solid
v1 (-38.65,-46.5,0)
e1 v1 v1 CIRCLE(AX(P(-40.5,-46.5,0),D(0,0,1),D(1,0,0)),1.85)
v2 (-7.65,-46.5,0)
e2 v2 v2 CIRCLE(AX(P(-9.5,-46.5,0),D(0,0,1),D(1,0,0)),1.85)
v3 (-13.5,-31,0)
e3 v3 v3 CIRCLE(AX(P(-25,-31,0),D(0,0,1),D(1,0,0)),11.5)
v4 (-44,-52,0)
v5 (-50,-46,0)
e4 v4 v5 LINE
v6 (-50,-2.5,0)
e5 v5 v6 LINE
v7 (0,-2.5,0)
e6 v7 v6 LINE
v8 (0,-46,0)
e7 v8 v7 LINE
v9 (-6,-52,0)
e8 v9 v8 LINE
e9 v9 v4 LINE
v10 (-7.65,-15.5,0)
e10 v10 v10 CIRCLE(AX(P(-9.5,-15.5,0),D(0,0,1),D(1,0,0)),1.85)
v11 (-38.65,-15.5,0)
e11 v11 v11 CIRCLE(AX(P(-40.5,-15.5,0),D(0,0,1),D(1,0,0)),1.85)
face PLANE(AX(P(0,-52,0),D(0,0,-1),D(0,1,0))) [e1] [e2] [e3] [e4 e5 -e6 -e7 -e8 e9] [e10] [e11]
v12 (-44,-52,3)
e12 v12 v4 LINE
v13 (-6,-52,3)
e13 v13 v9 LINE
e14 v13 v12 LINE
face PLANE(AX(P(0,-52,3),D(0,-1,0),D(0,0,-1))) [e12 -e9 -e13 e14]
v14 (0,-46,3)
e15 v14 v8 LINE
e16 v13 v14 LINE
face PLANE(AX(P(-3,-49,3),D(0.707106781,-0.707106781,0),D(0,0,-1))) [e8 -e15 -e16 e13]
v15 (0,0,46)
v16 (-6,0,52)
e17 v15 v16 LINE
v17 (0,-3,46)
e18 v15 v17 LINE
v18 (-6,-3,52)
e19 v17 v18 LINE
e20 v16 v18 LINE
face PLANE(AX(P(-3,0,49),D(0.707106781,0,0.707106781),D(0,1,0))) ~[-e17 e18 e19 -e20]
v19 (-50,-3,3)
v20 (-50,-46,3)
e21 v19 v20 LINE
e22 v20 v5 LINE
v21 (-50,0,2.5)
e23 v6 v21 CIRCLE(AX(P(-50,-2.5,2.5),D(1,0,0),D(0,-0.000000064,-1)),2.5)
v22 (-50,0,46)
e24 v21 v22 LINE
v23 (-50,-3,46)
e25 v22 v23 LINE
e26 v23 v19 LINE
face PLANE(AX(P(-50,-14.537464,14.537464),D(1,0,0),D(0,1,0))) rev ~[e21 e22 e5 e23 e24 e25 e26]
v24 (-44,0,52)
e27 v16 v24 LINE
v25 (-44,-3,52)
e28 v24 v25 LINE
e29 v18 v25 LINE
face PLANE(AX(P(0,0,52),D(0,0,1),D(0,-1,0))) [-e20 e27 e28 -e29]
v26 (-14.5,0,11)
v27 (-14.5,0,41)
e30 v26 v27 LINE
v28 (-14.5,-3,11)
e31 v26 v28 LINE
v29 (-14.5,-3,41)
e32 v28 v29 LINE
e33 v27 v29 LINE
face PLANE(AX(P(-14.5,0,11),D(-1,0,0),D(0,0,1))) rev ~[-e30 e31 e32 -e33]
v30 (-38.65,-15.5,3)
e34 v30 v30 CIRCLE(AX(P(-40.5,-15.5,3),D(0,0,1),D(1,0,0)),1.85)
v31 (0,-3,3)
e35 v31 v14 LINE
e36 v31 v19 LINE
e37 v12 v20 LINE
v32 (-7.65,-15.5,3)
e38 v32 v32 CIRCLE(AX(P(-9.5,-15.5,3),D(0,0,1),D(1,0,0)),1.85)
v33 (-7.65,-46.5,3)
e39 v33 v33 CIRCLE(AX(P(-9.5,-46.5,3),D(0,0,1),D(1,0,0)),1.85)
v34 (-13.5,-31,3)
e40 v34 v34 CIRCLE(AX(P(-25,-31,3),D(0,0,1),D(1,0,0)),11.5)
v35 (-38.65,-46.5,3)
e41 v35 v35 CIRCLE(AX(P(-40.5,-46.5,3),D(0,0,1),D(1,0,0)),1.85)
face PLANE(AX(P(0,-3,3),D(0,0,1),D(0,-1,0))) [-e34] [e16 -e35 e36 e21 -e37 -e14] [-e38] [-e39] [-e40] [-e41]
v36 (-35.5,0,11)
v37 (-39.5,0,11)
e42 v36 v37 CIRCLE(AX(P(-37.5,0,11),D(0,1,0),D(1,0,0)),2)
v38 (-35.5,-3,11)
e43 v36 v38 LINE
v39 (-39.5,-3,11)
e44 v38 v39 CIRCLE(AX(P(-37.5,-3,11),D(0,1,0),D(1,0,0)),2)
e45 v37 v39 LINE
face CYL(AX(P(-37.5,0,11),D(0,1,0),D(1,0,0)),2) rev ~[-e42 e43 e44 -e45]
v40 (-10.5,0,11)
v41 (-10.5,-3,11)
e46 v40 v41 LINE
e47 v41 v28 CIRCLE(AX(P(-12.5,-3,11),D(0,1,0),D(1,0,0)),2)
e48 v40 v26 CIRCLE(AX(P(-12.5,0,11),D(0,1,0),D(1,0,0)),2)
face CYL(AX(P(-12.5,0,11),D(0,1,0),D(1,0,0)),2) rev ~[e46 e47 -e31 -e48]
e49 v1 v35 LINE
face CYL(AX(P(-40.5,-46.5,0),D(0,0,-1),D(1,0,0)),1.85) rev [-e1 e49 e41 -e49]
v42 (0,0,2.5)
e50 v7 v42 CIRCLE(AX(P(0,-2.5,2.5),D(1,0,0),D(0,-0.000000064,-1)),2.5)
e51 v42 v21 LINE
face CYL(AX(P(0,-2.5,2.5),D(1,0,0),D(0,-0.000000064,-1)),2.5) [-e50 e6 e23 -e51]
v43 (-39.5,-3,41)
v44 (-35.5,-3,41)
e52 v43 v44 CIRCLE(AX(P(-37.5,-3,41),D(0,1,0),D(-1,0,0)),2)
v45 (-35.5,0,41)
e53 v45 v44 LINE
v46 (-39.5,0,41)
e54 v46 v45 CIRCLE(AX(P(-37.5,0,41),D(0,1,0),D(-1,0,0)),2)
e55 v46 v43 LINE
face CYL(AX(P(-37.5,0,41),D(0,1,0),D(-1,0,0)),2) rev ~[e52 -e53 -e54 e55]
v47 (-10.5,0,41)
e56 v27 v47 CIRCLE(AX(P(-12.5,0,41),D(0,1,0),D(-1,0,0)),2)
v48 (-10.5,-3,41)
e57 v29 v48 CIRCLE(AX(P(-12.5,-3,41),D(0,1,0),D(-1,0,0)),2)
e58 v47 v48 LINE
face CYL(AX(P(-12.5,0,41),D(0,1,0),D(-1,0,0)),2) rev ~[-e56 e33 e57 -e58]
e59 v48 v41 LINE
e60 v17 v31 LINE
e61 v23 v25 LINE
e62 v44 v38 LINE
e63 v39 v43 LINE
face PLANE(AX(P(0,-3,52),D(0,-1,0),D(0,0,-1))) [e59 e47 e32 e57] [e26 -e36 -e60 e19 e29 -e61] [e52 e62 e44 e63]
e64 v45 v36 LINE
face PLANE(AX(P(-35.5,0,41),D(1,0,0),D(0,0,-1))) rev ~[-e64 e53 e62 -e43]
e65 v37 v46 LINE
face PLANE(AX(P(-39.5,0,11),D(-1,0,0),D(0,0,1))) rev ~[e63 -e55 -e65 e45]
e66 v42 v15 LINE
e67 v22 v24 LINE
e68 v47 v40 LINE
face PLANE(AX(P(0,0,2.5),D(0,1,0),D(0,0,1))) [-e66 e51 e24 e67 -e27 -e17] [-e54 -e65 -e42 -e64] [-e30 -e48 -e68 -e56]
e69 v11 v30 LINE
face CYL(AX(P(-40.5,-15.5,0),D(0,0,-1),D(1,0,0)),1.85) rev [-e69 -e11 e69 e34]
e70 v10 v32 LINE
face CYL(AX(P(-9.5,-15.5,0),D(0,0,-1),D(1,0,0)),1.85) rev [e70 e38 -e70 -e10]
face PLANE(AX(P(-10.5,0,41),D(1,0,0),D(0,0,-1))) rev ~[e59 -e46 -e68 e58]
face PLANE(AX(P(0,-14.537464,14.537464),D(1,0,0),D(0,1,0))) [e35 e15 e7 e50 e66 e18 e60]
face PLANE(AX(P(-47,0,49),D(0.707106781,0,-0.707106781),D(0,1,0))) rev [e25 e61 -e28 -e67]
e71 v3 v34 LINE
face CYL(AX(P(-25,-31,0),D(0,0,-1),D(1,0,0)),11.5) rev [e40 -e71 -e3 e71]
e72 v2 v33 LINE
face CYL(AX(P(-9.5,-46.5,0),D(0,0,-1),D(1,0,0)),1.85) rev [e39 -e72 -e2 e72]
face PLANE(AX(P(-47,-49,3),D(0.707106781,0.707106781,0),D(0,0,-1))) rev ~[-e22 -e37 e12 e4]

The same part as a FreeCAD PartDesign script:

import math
import FreeCAD as App
import Part
import Sketcher


def edges_at(feature, points):
    """Names of the edges that pass closest to the given points."""
    edges = feature.Shape.Edges
    near = lambda p: min(range(len(edges)), key=lambda i: edges[i].distToShape(Part.Vertex(*p))[0])
    return sorted({f"Edge{near(p) + 1}" for p in points})

doc = App.newDocument("Part")
params = doc.addObject("Spreadsheet::Sheet", "Params")
for row, (alias, value) in enumerate([
    ("sketch1_radius", "2.5 mm"),
    ("sketch1_width", "3 mm"),
    ("sketch1_width2", "49 mm"),
    ("pad1_length", "50 mm"),
    ("sketch2_diameter", "23 mm"),
    ("sketch2_diameter2", "3.7 mm"),
    ("pocket1_length", "3 mm"),
    ("chamfer_size", "6 mm"),
    ("sketch3_radius", "2 mm"),
    ("sketch3_height", "30 mm"),
    ("pocket2_length", "3 mm"),
], start=1):
    params.set(f"A{row}", alias)
    params.set(f"B{row}", "=" + value)
    params.setAlias(f"B{row}", alias)

body = doc.addObject("PartDesign::Body", "Body")

# Sketch on YZ plane
sketch1 = doc.addObject("Sketcher::SketchObject", "Sketch")
body.addObject(sketch1)
sketch1.AttachmentSupport = (doc.YZ_Plane, [""])
sketch1.MapMode = "FlatFace"
sketch1.addGeometry(Part.LineSegment(App.Vector(-52, 3, 0), App.Vector(-52, 0, 0)), False)
sketch1.addGeometry(Part.LineSegment(App.Vector(-52, 0, 0), App.Vector(-2.5, 0, 0)), False)
sketch1.addGeometry(Part.ArcOfCircle(Part.Circle(App.Vector(-2.5, 2.5, 0), App.Vector(0, 0, 1), 2.5), math.radians(-90), math.radians(0)), False)
sketch1.addGeometry(Part.LineSegment(App.Vector(0, 2.5, 0), App.Vector(0, 52, 0)), False)
sketch1.addGeometry(Part.LineSegment(App.Vector(0, 52, 0), App.Vector(-3, 52, 0)), False)
sketch1.addGeometry(Part.LineSegment(App.Vector(-3, 52, 0), App.Vector(-3, 3, 0)), False)
sketch1.addGeometry(Part.LineSegment(App.Vector(-3, 3, 0), App.Vector(-52, 3, 0)), False)
sketch1.addConstraint(Sketcher.Constraint("Coincident", 0, 2, 1, 1))
sketch1.addConstraint(Sketcher.Constraint("Tangent", 1, 2, 2, 1))
sketch1.addConstraint(Sketcher.Constraint("Tangent", 2, 2, 3, 1))
sketch1.addConstraint(Sketcher.Constraint("Coincident", 3, 2, 4, 1))
sketch1.addConstraint(Sketcher.Constraint("Coincident", 4, 2, 5, 1))
sketch1.addConstraint(Sketcher.Constraint("Coincident", 5, 2, 6, 1))
sketch1.addConstraint(Sketcher.Constraint("Coincident", 6, 2, 0, 1))
sketch1.addConstraint(Sketcher.Constraint("Vertical", 0))
sketch1.addConstraint(Sketcher.Constraint("Horizontal", 1))
sketch1.addConstraint(Sketcher.Constraint("Vertical", 3))
sketch1.addConstraint(Sketcher.Constraint("Horizontal", 4))
sketch1.addConstraint(Sketcher.Constraint("Vertical", 5))
sketch1.addConstraint(Sketcher.Constraint("Horizontal", 6))
sketch1.addConstraint(Sketcher.Constraint("PointOnObject", 0, 2, -1))
sketch1.addConstraint(Sketcher.Constraint("PointOnObject", 2, 2, -2))
sketch1.addConstraint(Sketcher.Constraint("Equal", 4, 0))
sketch1.addConstraint(Sketcher.Constraint("Equal", 1, 3))
sketch1.addConstraint(Sketcher.Constraint("Radius", 2, 2.5))
sketch1.addConstraint(Sketcher.Constraint("DistanceX", 4, 2, 4, 1, 3.0))
sketch1.addConstraint(Sketcher.Constraint("DistanceX", 6, 2, 6, 1, 49.0))
sketch1.setExpression("Constraints[17]", "Params.sketch1_radius")
sketch1.setExpression("Constraints[18]", "Params.sketch1_width")
sketch1.setExpression("Constraints[19]", "Params.sketch1_width2")
pad1 = doc.addObject("PartDesign::Pad", "Pad")
body.addObject(pad1)
pad1.Profile = sketch1
pad1.setExpression("Length", "Params.pad1_length")
pad1.Reversed = True

# Sketch on XY plane
sketch2 = doc.addObject("Sketcher::SketchObject", "Sketch001")
body.addObject(sketch2)
sketch2.AttachmentSupport = (doc.XY_Plane, [""])
sketch2.MapMode = "FlatFace"
sketch2.addGeometry(Part.Circle(App.Vector(-25, -31, 0), App.Vector(0, 0, 1), 11.5), False)
sketch2.addGeometry(Part.Circle(App.Vector(-9.5, -46.5, 0), App.Vector(0, 0, 1), 1.9), False)
sketch2.addGeometry(Part.Circle(App.Vector(-9.5, -15.5, 0), App.Vector(0, 0, 1), 1.9), False)
sketch2.addGeometry(Part.Circle(App.Vector(-40.5, -46.5, 0), App.Vector(0, 0, 1), 1.9), False)
sketch2.addGeometry(Part.Circle(App.Vector(-40.5, -15.5, 0), App.Vector(0, 0, 1), 1.9), False)
sketch2.addConstraint(Sketcher.Constraint("Equal", 1, 2))
sketch2.addConstraint(Sketcher.Constraint("Equal", 2, 3))
sketch2.addConstraint(Sketcher.Constraint("Equal", 3, 4))
sketch2.addConstraint(Sketcher.Constraint("Horizontal", 1, 3, 3, 3))
sketch2.addConstraint(Sketcher.Constraint("Horizontal", 2, 3, 4, 3))
sketch2.addConstraint(Sketcher.Constraint("Vertical", 1, 3, 2, 3))
sketch2.addConstraint(Sketcher.Constraint("Vertical", 3, 3, 4, 3))
sketch2.addConstraint(Sketcher.Constraint("Diameter", 0, 23.0))
sketch2.addConstraint(Sketcher.Constraint("Diameter", 1, 3.7))
sketch2.addConstraint(Sketcher.Constraint("DistanceX", 0, 3, -1, 1, 25.0))
sketch2.addConstraint(Sketcher.Constraint("DistanceY", 0, 3, -1, 1, 31.0))
sketch2.addConstraint(Sketcher.Constraint("DistanceY", 1, 3, 2, 3, 31.0))
sketch2.addConstraint(Sketcher.Constraint("DistanceX", 3, 3, 1, 3, 31.0))
sketch2.addConstraint(Sketcher.Constraint("DistanceX", 1, 3, -1, 1, 9.5))
sketch2.addConstraint(Sketcher.Constraint("DistanceY", 1, 3, -1, 1, 46.5))
sketch2.setExpression("Constraints[7]", "Params.sketch2_diameter")
sketch2.setExpression("Constraints[8]", "Params.sketch2_diameter2")
pocket1 = doc.addObject("PartDesign::Pocket", "Pocket")
body.addObject(pocket1)
pocket1.Profile = sketch2
pocket1.setExpression("Length", "Params.pocket1_length")
pocket1.Reversed = True
doc.recompute()

chamfer = doc.addObject("PartDesign::Chamfer", "Chamfer")
body.addObject(chamfer)
chamfer.Base = (pocket1, edges_at(pocket1, [
    (0, -52, 1.5),
    (-50, -52, 1.5),
    (0, -1.5, 52),
    (-50, -1.5, 52),
]))
chamfer.setExpression("Size", "Params.chamfer_size")

# Sketch on XZ plane
sketch3 = doc.addObject("Sketcher::SketchObject", "Sketch002")
body.addObject(sketch3)
sketch3.AttachmentSupport = (doc.XZ_Plane, [""])
sketch3.MapMode = "FlatFace"
sketch3.addGeometry(Part.LineSegment(App.Vector(-39.5, 11, 0), App.Vector(-39.5, 41, 0)), False)
sketch3.addGeometry(Part.ArcOfCircle(Part.Circle(App.Vector(-37.5, 41, 0), App.Vector(0, 0, 1), 2), math.radians(0), math.radians(180)), False)
sketch3.addGeometry(Part.LineSegment(App.Vector(-35.5, 41, 0), App.Vector(-35.5, 11, 0)), False)
sketch3.addGeometry(Part.ArcOfCircle(Part.Circle(App.Vector(-37.5, 11, 0), App.Vector(0, 0, 1), 2), math.radians(180), math.radians(360)), False)
sketch3.addGeometry(Part.ArcOfCircle(Part.Circle(App.Vector(-12.5, 41, 0), App.Vector(0, 0, 1), 2), math.radians(0), math.radians(180)), False)
sketch3.addGeometry(Part.LineSegment(App.Vector(-10.5, 41, 0), App.Vector(-10.5, 11, 0)), False)
sketch3.addGeometry(Part.ArcOfCircle(Part.Circle(App.Vector(-12.5, 11, 0), App.Vector(0, 0, 1), 2), math.radians(180), math.radians(360)), False)
sketch3.addGeometry(Part.LineSegment(App.Vector(-14.5, 11, 0), App.Vector(-14.5, 41, 0)), False)
sketch3.addConstraint(Sketcher.Constraint("Tangent", 0, 2, 1, 2))
sketch3.addConstraint(Sketcher.Constraint("Tangent", 1, 1, 2, 1))
sketch3.addConstraint(Sketcher.Constraint("Tangent", 2, 2, 3, 2))
sketch3.addConstraint(Sketcher.Constraint("Tangent", 3, 1, 0, 1))
sketch3.addConstraint(Sketcher.Constraint("Tangent", 4, 1, 5, 1))
sketch3.addConstraint(Sketcher.Constraint("Tangent", 5, 2, 6, 2))
sketch3.addConstraint(Sketcher.Constraint("Tangent", 6, 1, 7, 1))
sketch3.addConstraint(Sketcher.Constraint("Tangent", 7, 2, 4, 2))
sketch3.addConstraint(Sketcher.Constraint("Vertical", 0))
sketch3.addConstraint(Sketcher.Constraint("Vertical", 2))
sketch3.addConstraint(Sketcher.Constraint("Vertical", 5))
sketch3.addConstraint(Sketcher.Constraint("Vertical", 7))
sketch3.addConstraint(Sketcher.Constraint("Equal", 3, 4))
sketch3.addConstraint(Sketcher.Constraint("Horizontal", 1, 3, 4, 3))
sketch3.addConstraint(Sketcher.Constraint("Horizontal", 3, 3, 6, 3))
sketch3.addConstraint(Sketcher.Constraint("Radius", 1, 2.0))
sketch3.addConstraint(Sketcher.Constraint("DistanceY", 0, 1, 0, 2, 30.0))
sketch3.addConstraint(Sketcher.Constraint("DistanceY", -1, 1, 1, 3, 41.0))
sketch3.addConstraint(Sketcher.Constraint("DistanceX", 1, 3, 4, 3, 25.0))
sketch3.addConstraint(Sketcher.Constraint("DistanceX", 1, 3, -1, 1, 37.5))
sketch3.setExpression("Constraints[15]", "Params.sketch3_radius")
sketch3.setExpression("Constraints[16]", "Params.sketch3_height")
pocket2 = doc.addObject("PartDesign::Pocket", "Pocket001")
body.addObject(pocket2)
pocket2.Profile = sketch3
pocket2.setExpression("Length", "Params.pocket2_length")
pocket2.Reversed = True

doc.recompute()
